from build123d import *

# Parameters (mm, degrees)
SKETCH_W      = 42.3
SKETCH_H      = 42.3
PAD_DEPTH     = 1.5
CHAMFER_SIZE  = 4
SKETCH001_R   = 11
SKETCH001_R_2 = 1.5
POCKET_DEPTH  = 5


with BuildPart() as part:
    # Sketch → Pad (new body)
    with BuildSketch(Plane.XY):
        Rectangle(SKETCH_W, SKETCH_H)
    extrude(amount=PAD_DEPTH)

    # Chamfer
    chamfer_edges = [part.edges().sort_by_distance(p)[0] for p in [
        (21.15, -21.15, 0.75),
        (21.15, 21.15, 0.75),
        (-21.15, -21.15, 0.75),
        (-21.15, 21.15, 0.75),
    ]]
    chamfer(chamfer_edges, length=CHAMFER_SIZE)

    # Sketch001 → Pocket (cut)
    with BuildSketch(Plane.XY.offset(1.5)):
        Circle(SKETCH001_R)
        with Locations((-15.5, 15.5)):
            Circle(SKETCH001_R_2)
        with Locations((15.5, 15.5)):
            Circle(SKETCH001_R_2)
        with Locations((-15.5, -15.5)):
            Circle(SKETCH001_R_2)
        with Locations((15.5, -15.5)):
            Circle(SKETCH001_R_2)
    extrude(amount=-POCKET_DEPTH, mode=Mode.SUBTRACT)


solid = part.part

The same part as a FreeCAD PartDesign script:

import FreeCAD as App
import Part
import Sketcher
Q = App.Units.Quantity


def edges_at(feature, points):
    """Names of the edges that pass closest to the given points."""
    edges = feature.Shape.Edges
    near = lambda p: min(range(len(edges)), key=lambda i: edges[i].distToShape(Part.Vertex(*p))[0])
    return sorted({f"Edge{near(p) + 1}" for p in points})

doc = App.newDocument("Part")
body = doc.addObject("PartDesign::Body", "Body")

sketch1 = doc.addObject("Sketcher::SketchObject", "Sketch")
body.addObject(sketch1)
sketch1.AttachmentSupport = (doc.XY_Plane, [""])
sketch1.MapMode = "FlatFace"
sketch1.addGeometry(Part.LineSegment(App.Vector(-21, 21, 0), App.Vector(-21, -21, 0)), False)
sketch1.addGeometry(Part.LineSegment(App.Vector(-21, -21, 0), App.Vector(21, -21, 0)), False)
sketch1.addGeometry(Part.LineSegment(App.Vector(21, -21, 0), App.Vector(21, 21, 0)), False)
sketch1.addGeometry(Part.LineSegment(App.Vector(21, 21, 0), App.Vector(-21, 21, 0)), False)
sketch1.addConstraint(Sketcher.Constraint("Coincident", 0, 2, 1, 1))
sketch1.addConstraint(Sketcher.Constraint("Coincident", 1, 2, 2, 1))
sketch1.addConstraint(Sketcher.Constraint("Coincident", 2, 2, 3, 1))
sketch1.addConstraint(Sketcher.Constraint("Coincident", 3, 2, 0, 1))
sketch1.addConstraint(Sketcher.Constraint("Vertical", 0))
sketch1.addConstraint(Sketcher.Constraint("Horizontal", 1))
sketch1.addConstraint(Sketcher.Constraint("Vertical", 2))
sketch1.addConstraint(Sketcher.Constraint("Horizontal", 3))
sketch1.addConstraint(Sketcher.Constraint("Symmetric", 0, 2, 2, 2, -1, 1))
sketch1.addConstraint(Sketcher.Constraint("Equal", 3, 0))
sketch1.addConstraint(Sketcher.Constraint("DistanceX", 1, 1, 1, 2, Q("42.3 mm")))
pad1 = doc.addObject("PartDesign::Pad", "Pad")
body.addObject(pad1)
pad1.Profile = sketch1
pad1.Length = 1.5
doc.recompute()

chamfer = doc.addObject("PartDesign::Chamfer", "Chamfer")
body.addObject(chamfer)
chamfer.Base = (pad1, edges_at(pad1, [
    (21.15, -21.15, 0.75),
    (21.15, 21.15, 0.75),
    (-21.15, -21.15, 0.75),
    (-21.15, 21.15, 0.75),
]))
chamfer.Size = 4

sketch2 = doc.addObject("Sketcher::SketchObject", "Sketch001")
body.addObject(sketch2)
sketch2.AttachmentSupport = (doc.XY_Plane, [""])
sketch2.MapMode = "FlatFace"
sketch2.AttachmentOffset = App.Placement(App.Vector(0, 0, 1.5), App.Rotation())
sketch2.addGeometry(Part.Circle(App.Vector(0, 0, 0), App.Vector(0, 0, 1), 11), False)
sketch2.addGeometry(Part.Circle(App.Vector(-15.5, 15.5, 0), App.Vector(0, 0, 1), 1.5), False)
sketch2.addGeometry(Part.Circle(App.Vector(15.5, 15.5, 0), App.Vector(0, 0, 1), 1.5), False)
sketch2.addGeometry(Part.Circle(App.Vector(-15.5, -15.5, 0), App.Vector(0, 0, 1), 1.5), False)
sketch2.addGeometry(Part.Circle(App.Vector(15.5, -15.5, 0), App.Vector(0, 0, 1), 1.5), False)
sketch2.addConstraint(Sketcher.Constraint("Coincident", 0, 3, -1, 1))
sketch2.addConstraint(Sketcher.Constraint("Equal", 1, 2))
sketch2.addConstraint(Sketcher.Constraint("Equal", 2, 3))
sketch2.addConstraint(Sketcher.Constraint("Equal", 3, 4))
sketch2.addConstraint(Sketcher.Constraint("Symmetric", 2, 3, 3, 3, -1, 1))
sketch2.addConstraint(Sketcher.Constraint("Symmetric", 1, 3, 4, 3, -1, 1))
sketch2.addConstraint(Sketcher.Constraint("Symmetric", 1, 3, 2, 3, -2))
sketch2.addConstraint(Sketcher.Constraint("Diameter", 0, Q("22 mm")))
sketch2.addConstraint(Sketcher.Constraint("Diameter", 1, Q("3 mm")))
sketch2.addConstraint(Sketcher.Constraint("DistanceX", 1, 3, 2, 3, Q("31 mm")))
sketch2.addConstraint(Sketcher.Constraint("DistanceY", 3, 3, 1, 3, Q("31 mm")))
pocket1 = doc.addObject("PartDesign::Pocket", "Pocket")
body.addObject(pocket1)
pocket1.Profile = sketch2
pocket1.Length = 5

doc.recompute()
